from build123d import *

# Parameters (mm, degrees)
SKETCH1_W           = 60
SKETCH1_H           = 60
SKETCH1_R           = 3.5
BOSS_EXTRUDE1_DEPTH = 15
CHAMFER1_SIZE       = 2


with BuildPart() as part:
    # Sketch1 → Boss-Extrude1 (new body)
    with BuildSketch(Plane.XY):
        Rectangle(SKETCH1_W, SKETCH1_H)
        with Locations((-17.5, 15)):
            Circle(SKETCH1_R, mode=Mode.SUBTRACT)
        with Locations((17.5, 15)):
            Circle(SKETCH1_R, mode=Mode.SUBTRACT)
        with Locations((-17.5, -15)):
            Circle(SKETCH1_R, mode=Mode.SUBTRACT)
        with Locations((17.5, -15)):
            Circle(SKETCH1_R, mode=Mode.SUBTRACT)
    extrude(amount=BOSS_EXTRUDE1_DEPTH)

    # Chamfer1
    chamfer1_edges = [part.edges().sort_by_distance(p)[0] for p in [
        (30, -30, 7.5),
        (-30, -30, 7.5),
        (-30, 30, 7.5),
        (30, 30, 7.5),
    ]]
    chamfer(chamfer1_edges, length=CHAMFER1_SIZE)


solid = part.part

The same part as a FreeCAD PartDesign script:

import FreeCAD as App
import Part
import Sketcher
from FreeCAD import Vector


def edges_at(feature, points):
    """Names of the edges that pass closest to the given points."""
    edges = feature.Shape.Edges
    near = lambda p: min(range(len(edges)), key=lambda i: edges[i].distToShape(Part.Vertex(*p))[0])
    return sorted({f"Edge{near(p) + 1}" for p in points})

doc = App.newDocument("Part")
params = doc.addObject("Spreadsheet::Sheet", "Params")
for row, (alias, value) in enumerate([
    ("sketch1_diameter", "7 mm"),
    ("sketch1_width", "60 mm"),
    ("pad1_length", "15 mm"),
    ("chamfer_size", "2 mm"),
], start=1):
    params.set(f"A{row}", alias)
    params.set(f"B{row}", "=" + value)
    params.setAlias(f"B{row}", alias)

body = doc.addObject("PartDesign::Body", "Body")

# Sketch on XY plane
sketch1 = doc.addObject("Sketcher::SketchObject", "Sketch")
body.addObject(sketch1)
sketch1.AttachmentSupport = (doc.XY_Plane, [""])
sketch1.MapMode = "FlatFace"
sketch1.addGeometry([
    Part.LineSegment(Vector(-30, 30, 0), Vector(-30, -30, 0)),  # 0
    Part.LineSegment(Vector(-30, -30, 0), Vector(30, -30, 0)),  # 1
    Part.LineSegment(Vector(30, -30, 0), Vector(30, 30, 0)),  # 2
    Part.LineSegment(Vector(30, 30, 0), Vector(-30, 30, 0)),  # 3
    Part.Circle(Vector(-17.5, -15, 0), Vector(0, 0, 1), 3.5),  # 4
    Part.Circle(Vector(17.5, -15, 0), Vector(0, 0, 1), 3.5),  # 5
    Part.Circle(Vector(-17.5, 15, 0), Vector(0, 0, 1), 3.5),  # 6
    Part.Circle(Vector(17.5, 15, 0), Vector(0, 0, 1), 3.5),  # 7
], False)
sketch1.addConstraint([
    Sketcher.Constraint("Coincident", 0, 2, 1, 1),
    Sketcher.Constraint("Coincident", 1, 2, 2, 1),
    Sketcher.Constraint("Coincident", 2, 2, 3, 1),
    Sketcher.Constraint("Coincident", 3, 2, 0, 1),
    Sketcher.Constraint("Vertical", 0),
    Sketcher.Constraint("Horizontal", 1),
    Sketcher.Constraint("Vertical", 2),
    Sketcher.Constraint("Horizontal", 3),
    Sketcher.Constraint("Equal", 4, 5),
    Sketcher.Constraint("Equal", 5, 6),
    Sketcher.Constraint("Equal", 6, 7),
    Sketcher.Constraint("Symmetric", 5, 3, 6, 3, -1, 1),
    Sketcher.Constraint("Symmetric", 4, 3, 7, 3, -1, 1),
    Sketcher.Constraint("Symmetric", 0, 2, 2, 2, -1, 1),
    Sketcher.Constraint("Symmetric", 4, 3, 5, 3, -2),
    Sketcher.Constraint("Equal", 3, 0),
    Sketcher.Constraint("Diameter", 4, 7.0),
    Sketcher.Constraint("DistanceX", 1, 1, 1, 2, 60.0),
    Sketcher.Constraint("DistanceY", 4, 3, -1, 1, 15.0),
    Sketcher.Constraint("DistanceX", 4, 3, 5, 3, 35.0),
])
sketch1.setExpression("Constraints[16]", "Params.sketch1_diameter")
sketch1.setExpression("Constraints[17]", "Params.sketch1_width")
pad1 = doc.addObject("PartDesign::Pad", "Pad")
body.addObject(pad1)
pad1.Profile = sketch1
pad1.setExpression("Length", "Params.pad1_length")
doc.recompute()

chamfer = doc.addObject("PartDesign::Chamfer", "Chamfer")
body.addObject(chamfer)
chamfer.Base = (pad1, edges_at(pad1, [
    (30, -30, 7.5),
    (-30, -30, 7.5),
    (-30, 30, 7.5),
    (30, 30, 7.5),
]))
chamfer.setExpression("Size", "Params.chamfer_size")

doc.recompute()
